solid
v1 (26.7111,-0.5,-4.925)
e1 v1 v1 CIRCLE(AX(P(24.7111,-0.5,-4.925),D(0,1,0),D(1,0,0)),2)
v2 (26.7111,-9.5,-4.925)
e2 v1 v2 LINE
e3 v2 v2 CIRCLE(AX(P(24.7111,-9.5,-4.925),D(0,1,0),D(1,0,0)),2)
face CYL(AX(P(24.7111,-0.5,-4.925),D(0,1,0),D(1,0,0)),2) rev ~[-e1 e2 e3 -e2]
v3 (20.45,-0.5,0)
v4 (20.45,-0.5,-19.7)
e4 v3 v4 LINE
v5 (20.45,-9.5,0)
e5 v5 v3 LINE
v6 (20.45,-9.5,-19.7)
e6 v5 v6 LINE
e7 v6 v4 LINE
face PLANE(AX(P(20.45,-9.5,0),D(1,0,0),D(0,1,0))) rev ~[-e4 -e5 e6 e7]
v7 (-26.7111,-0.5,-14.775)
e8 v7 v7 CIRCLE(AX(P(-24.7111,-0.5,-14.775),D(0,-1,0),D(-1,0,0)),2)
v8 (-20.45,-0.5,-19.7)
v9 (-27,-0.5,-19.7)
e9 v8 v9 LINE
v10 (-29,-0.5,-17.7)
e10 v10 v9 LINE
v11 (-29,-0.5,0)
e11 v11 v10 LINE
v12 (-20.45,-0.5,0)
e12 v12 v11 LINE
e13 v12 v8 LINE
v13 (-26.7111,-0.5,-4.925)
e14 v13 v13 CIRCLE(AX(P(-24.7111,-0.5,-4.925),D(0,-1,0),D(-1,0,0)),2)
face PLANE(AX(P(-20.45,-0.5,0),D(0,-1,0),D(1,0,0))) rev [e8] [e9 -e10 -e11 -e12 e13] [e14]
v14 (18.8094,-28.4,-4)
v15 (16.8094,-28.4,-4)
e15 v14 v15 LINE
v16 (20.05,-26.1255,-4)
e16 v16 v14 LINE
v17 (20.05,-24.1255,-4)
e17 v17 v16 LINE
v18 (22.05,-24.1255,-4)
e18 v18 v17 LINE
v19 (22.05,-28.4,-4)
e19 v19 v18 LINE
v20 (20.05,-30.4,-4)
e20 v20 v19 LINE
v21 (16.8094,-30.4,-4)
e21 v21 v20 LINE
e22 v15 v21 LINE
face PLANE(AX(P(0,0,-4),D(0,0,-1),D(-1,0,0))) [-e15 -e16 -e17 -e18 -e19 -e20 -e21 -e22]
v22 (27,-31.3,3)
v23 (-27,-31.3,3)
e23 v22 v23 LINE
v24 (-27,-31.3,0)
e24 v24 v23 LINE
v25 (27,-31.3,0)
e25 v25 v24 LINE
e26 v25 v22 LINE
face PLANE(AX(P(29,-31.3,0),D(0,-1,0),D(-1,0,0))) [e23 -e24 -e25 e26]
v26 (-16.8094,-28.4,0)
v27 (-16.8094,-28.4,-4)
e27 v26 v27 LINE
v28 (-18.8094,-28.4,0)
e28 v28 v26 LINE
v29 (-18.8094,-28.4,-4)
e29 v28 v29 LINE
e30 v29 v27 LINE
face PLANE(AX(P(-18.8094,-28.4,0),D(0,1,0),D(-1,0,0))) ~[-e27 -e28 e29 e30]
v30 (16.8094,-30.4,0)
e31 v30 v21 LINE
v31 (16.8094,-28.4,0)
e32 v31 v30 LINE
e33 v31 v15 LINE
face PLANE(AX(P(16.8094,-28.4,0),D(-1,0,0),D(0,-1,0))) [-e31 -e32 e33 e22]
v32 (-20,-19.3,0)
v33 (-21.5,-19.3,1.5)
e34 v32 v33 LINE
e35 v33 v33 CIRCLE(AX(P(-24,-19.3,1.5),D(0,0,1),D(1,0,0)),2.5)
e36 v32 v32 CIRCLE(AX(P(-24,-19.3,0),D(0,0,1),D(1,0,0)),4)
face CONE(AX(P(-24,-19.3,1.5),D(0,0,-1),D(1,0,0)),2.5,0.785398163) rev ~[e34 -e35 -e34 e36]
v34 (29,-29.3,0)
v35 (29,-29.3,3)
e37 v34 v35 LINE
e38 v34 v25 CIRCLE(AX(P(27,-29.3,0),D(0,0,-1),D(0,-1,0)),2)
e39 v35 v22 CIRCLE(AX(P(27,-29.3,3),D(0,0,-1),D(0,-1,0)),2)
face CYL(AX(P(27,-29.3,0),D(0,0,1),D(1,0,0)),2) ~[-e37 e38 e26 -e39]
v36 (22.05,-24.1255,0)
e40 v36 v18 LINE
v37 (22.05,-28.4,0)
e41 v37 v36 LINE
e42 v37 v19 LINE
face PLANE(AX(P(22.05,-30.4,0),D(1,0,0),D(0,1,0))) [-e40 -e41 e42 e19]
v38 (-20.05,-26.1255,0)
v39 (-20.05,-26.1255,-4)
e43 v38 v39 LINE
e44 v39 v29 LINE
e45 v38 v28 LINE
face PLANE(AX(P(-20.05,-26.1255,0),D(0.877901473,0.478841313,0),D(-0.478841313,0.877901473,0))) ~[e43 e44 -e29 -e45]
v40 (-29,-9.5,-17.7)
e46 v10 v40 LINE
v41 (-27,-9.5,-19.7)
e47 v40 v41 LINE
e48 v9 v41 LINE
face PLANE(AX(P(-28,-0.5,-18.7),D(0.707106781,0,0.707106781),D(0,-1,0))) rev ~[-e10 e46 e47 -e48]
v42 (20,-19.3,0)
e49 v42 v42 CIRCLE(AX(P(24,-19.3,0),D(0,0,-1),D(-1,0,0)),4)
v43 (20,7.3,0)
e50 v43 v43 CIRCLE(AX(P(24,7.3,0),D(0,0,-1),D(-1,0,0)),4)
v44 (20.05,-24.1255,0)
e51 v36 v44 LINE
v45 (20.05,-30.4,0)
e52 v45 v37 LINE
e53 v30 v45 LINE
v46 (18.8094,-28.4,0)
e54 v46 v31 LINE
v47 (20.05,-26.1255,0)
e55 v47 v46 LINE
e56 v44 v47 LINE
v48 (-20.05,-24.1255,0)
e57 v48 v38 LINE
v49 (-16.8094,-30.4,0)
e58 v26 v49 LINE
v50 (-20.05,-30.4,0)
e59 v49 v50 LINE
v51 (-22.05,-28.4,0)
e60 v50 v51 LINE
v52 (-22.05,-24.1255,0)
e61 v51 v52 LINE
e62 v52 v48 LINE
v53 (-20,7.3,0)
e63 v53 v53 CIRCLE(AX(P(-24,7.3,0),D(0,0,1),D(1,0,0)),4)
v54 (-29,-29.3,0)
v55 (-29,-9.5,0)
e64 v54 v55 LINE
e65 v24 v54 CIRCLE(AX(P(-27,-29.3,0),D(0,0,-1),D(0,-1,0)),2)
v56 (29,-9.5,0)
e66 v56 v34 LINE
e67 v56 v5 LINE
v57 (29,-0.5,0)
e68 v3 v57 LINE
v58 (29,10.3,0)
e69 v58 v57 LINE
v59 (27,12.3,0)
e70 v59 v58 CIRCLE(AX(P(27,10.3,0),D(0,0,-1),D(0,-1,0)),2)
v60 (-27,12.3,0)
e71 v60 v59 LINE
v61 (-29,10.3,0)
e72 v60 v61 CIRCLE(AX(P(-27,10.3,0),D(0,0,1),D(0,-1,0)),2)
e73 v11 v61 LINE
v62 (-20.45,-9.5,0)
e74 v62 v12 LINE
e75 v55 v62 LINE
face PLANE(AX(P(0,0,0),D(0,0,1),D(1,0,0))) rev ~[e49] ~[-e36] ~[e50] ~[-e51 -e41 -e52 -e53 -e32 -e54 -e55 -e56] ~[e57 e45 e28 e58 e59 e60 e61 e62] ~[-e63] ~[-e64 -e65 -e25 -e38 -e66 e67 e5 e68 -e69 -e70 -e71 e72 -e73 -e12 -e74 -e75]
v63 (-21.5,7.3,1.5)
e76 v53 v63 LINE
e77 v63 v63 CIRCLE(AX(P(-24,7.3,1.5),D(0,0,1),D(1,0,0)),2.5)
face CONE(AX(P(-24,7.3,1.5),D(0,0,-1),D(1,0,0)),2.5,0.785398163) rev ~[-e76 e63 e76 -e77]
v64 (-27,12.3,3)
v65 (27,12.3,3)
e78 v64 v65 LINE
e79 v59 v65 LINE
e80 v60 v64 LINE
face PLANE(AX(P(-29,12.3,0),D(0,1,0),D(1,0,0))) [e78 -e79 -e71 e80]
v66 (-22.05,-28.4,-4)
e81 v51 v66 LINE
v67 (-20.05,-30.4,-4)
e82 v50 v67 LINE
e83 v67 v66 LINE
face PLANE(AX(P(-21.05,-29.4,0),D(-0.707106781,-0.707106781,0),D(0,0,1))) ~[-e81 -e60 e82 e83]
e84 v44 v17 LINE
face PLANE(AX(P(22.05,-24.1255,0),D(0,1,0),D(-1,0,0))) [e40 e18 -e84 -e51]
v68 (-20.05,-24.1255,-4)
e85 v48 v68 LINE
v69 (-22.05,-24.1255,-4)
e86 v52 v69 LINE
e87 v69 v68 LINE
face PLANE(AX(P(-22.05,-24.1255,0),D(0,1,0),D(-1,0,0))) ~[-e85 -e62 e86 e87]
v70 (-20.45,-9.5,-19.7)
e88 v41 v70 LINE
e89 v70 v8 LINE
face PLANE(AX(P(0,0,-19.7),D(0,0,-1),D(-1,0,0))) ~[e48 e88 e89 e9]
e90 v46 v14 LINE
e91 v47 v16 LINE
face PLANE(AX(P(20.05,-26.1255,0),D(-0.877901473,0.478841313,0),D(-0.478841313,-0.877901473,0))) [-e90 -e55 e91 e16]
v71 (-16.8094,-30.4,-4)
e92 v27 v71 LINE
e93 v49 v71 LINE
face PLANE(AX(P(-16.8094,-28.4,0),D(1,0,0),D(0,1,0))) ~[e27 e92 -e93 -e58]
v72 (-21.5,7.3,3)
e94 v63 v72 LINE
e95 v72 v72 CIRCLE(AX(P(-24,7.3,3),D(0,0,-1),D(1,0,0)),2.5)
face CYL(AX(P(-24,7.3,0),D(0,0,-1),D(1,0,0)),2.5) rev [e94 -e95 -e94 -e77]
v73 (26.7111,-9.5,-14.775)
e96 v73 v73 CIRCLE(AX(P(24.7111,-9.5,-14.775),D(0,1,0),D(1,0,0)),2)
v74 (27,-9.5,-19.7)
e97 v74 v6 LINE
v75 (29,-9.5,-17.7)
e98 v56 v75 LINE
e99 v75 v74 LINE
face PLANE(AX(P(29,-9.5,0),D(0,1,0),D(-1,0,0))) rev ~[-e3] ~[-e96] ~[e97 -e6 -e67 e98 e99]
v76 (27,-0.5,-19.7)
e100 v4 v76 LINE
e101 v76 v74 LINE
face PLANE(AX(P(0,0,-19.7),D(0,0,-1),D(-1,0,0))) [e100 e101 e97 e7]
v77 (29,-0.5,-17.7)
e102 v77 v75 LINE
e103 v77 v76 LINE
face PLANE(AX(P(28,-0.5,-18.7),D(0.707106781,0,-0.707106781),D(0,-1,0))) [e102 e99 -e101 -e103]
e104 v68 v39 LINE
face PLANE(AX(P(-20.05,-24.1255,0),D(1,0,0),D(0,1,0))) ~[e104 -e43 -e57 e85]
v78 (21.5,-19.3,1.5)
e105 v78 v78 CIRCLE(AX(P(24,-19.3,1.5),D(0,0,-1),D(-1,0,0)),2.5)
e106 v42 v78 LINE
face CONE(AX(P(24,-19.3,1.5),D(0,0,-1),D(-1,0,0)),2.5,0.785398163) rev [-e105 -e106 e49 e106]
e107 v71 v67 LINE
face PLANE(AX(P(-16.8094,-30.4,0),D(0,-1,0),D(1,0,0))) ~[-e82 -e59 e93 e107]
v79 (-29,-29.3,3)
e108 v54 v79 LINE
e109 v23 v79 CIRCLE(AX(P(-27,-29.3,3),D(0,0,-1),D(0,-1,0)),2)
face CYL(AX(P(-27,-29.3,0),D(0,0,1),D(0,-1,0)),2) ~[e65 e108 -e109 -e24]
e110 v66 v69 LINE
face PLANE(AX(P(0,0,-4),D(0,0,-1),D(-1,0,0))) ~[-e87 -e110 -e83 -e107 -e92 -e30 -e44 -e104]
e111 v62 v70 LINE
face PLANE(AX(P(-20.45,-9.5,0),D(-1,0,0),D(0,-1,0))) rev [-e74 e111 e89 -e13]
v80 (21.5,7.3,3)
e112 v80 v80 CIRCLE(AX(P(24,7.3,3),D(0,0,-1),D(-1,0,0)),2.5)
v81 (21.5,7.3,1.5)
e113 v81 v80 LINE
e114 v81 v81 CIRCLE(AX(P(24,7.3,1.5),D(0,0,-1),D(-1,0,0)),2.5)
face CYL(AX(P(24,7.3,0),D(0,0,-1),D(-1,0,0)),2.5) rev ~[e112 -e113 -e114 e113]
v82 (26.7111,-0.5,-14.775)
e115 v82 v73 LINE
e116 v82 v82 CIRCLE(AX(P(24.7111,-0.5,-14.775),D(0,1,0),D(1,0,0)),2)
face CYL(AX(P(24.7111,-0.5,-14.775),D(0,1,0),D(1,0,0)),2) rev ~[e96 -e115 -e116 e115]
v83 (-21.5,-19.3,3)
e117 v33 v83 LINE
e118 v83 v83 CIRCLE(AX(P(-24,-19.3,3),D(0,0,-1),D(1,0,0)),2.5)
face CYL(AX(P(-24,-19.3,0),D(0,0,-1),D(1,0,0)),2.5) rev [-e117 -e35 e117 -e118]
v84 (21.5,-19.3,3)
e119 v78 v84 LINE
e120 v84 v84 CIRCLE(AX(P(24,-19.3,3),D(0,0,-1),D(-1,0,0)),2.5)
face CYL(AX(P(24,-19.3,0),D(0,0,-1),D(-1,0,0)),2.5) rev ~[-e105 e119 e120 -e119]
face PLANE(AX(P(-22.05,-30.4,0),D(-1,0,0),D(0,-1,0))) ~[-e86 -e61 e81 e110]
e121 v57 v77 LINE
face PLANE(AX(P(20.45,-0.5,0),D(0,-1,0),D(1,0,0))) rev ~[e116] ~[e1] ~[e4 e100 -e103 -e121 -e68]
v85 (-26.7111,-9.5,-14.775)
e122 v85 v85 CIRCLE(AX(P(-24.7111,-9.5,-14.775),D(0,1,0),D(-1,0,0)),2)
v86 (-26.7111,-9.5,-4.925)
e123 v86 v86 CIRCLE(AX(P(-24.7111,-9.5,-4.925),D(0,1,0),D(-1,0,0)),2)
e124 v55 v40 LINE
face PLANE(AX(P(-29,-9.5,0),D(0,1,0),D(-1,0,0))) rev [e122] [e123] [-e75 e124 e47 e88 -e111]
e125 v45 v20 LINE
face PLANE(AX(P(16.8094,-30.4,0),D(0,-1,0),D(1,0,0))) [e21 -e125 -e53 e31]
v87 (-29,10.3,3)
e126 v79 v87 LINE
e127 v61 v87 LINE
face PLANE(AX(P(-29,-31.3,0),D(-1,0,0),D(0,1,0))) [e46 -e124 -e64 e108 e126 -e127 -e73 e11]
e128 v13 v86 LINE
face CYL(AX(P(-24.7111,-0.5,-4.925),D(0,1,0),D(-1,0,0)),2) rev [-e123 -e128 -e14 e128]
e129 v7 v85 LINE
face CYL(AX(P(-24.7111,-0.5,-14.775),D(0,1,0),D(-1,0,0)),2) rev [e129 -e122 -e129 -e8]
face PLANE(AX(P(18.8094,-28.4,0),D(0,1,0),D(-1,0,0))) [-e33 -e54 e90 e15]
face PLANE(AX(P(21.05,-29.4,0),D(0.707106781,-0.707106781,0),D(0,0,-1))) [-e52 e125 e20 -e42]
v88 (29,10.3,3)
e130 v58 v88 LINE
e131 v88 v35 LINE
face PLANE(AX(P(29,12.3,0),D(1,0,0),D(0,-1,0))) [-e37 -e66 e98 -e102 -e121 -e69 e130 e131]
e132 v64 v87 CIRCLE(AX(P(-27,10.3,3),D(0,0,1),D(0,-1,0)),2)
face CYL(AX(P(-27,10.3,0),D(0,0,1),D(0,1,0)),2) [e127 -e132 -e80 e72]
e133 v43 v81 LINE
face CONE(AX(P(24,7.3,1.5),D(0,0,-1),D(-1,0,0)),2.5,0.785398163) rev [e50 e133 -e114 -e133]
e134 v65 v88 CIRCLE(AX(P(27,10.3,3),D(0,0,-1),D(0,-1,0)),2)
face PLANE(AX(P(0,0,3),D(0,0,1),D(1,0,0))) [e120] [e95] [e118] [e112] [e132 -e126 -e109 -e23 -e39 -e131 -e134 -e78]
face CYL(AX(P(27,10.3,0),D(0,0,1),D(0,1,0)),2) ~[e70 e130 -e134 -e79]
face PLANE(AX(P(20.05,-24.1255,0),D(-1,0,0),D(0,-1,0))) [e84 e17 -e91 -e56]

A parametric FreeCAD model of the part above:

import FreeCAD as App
import Part
import Sketcher
from FreeCAD import Vector
Q = App.Units.Quantity


def edges_at(feature, points):
    """Names of the edges that pass closest to the given points."""
    edges = feature.Shape.Edges
    near = lambda p: min(range(len(edges)), key=lambda i: edges[i].distToShape(Part.Vertex(*p))[0])
    return sorted({f"Edge{near(p) + 1}" for p in points})

doc = App.newDocument("Part")
body = doc.addObject("PartDesign::Body", "Body")

sketch1 = body.newObject("Sketcher::SketchObject", "Sketch")
sketch1.AttachmentSupport = (doc.getObject("XY_Plane"), [""])
sketch1.MapMode = "FlatFace"
sketch1.addGeometry(Part.LineSegment(Vector(29, 12, 0), Vector(-29, 12, 0)), False)
sketch1.addGeometry(Part.LineSegment(Vector(-29, 12, 0), Vector(-29, -31, 0)), False)
sketch1.addGeometry(Part.LineSegment(Vector(-29, -31, 0), Vector(29, -31, 0)), False)
sketch1.addGeometry(Part.LineSegment(Vector(29, -31, 0), Vector(29, 12, 0)), False)
sketch1.addConstraint(Sketcher.Constraint("Coincident", 0, 2, 1, 1))
sketch1.addConstraint(Sketcher.Constraint("Coincident", 1, 2, 2, 1))
sketch1.addConstraint(Sketcher.Constraint("Coincident", 2, 2, 3, 1))
sketch1.addConstraint(Sketcher.Constraint("Coincident", 3, 2, 0, 1))
sketch1.addConstraint(Sketcher.Constraint("Horizontal", 0))
sketch1.addConstraint(Sketcher.Constraint("Vertical", 1))
sketch1.addConstraint(Sketcher.Constraint("Horizontal", 2))
sketch1.addConstraint(Sketcher.Constraint("Vertical", 3))
sketch1.addConstraint(Sketcher.Constraint("DistanceX", 0, 2, 0, 1, 58.0))
sketch1.addConstraint(Sketcher.Constraint("DistanceY", 1, 2, 1, 1, 43.6))
sketch1.addConstraint(Sketcher.Constraint("DistanceX", 0, 2, -1, 1, 29.0))
sketch1.addConstraint(Sketcher.Constraint("DistanceY", -1, 1, 0, 2, 12.3))
pad1 = body.newObject("PartDesign::Pad", "Pad")
pad1.Profile = sketch1
pad1.Length = 3

sketch2 = body.newObject("Sketcher::SketchObject", "Sketch001")
sketch2.AttachmentSupport = (doc.getObject("XY_Plane"), [""])
sketch2.MapMode = "FlatFace"
sketch2.addGeometry(Part.LineSegment(Vector(29, 0, 0), Vector(29, -10, 0)), False)
sketch2.addGeometry(Part.LineSegment(Vector(29, -10, 0), Vector(20, -10, 0)), False)
sketch2.addGeometry(Part.LineSegment(Vector(20, -10, 0), Vector(20, 0, 0)), False)
sketch2.addGeometry(Part.LineSegment(Vector(20, 0, 0), Vector(29, 0, 0)), False)
sketch2.addConstraint(Sketcher.Constraint("Coincident", 0, 2, 1, 1))
sketch2.addConstraint(Sketcher.Constraint("Coincident", 1, 2, 2, 1))
sketch2.addConstraint(Sketcher.Constraint("Coincident", 2, 2, 3, 1))
sketch2.addConstraint(Sketcher.Constraint("Coincident", 3, 2, 0, 1))
sketch2.addConstraint(Sketcher.Constraint("Vertical", 0))
sketch2.addConstraint(Sketcher.Constraint("Horizontal", 1))
sketch2.addConstraint(Sketcher.Constraint("Vertical", 2))
sketch2.addConstraint(Sketcher.Constraint("Horizontal", 3))
sketch2.addConstraint(Sketcher.Constraint("DistanceY", 0, 2, 0, 1, 9.0))
sketch2.addConstraint(Sketcher.Constraint("DistanceY", 2, 2, -1, 1, 0.5))
sketch2.addConstraint(Sketcher.Constraint("DistanceX", -1, 1, 0, 2, 29.0))
sketch2.addConstraint(Sketcher.Constraint("DistanceX", 1, 2, 1, 1, 8.55))
pad2 = body.newObject("PartDesign::Pad", "Pad001")
pad2.Profile = sketch2
pad2.Length = 19.7
pad2.Reversed = True

sketch3 = body.newObject("Sketcher::SketchObject", "Sketch002")
sketch3.AttachmentSupport = (doc.getObject("XY_Plane"), [""])
sketch3.MapMode = "FlatFace"
sketch3.addGeometry(Part.LineSegment(Vector(16.8, -30.4, 0), Vector(16.8, -28.4, 0)), False)
sketch3.addGeometry(Part.LineSegment(Vector(16.8, -28.4, 0), Vector(18.8, -28.4, 0)), False)
sketch3.addGeometry(Part.LineSegment(Vector(18.8, -28.4, 0), Vector(20.1, -26.1, 0)), False)
sketch3.addGeometry(Part.LineSegment(Vector(20.1, -26.1, 0), Vector(20.1, -24.1, 0)), False)
sketch3.addGeometry(Part.LineSegment(Vector(20.1, -24.1, 0), Vector(22.1, -24.1, 0)), False)
sketch3.addGeometry(Part.LineSegment(Vector(22.1, -24.1, 0), Vector(22.1, -30.4, 0)), False)
sketch3.addGeometry(Part.LineSegment(Vector(22.1, -30.4, 0), Vector(16.8, -30.4, 0)), False)
sketch3.addConstraint(Sketcher.Constraint("Coincident", 0, 2, 1, 1))
sketch3.addConstraint(Sketcher.Constraint("Coincident", 1, 2, 2, 1))
sketch3.addConstraint(Sketcher.Constraint("Coincident", 2, 2, 3, 1))
sketch3.addConstraint(Sketcher.Constraint("Coincident", 3, 2, 4, 1))
sketch3.addConstraint(Sketcher.Constraint("Coincident", 4, 2, 5, 1))
sketch3.addConstraint(Sketcher.Constraint("Coincident", 5, 2, 6, 1))
sketch3.addConstraint(Sketcher.Constraint("Coincident", 6, 2, 0, 1))
sketch3.addConstraint(Sketcher.Constraint("Vertical", 0))
sketch3.addConstraint(Sketcher.Constraint("Horizontal", 1))
sketch3.addConstraint(Sketcher.Constraint("Vertical", 3))
sketch3.addConstraint(Sketcher.Constraint("Horizontal", 4))
sketch3.addConstraint(Sketcher.Constraint("Vertical", 5))
sketch3.addConstraint(Sketcher.Constraint("Horizontal", 6))
sketch3.addConstraint(Sketcher.Constraint("Equal", 1, 4))
sketch3.addConstraint(Sketcher.Constraint("Equal", 4, 0))
sketch3.addConstraint(Sketcher.Constraint("Equal", 0, 3))
sketch3.addConstraint(Sketcher.Constraint("DistanceX", 1, 1, 1, 2, 2.0))
sketch3.addConstraint(Sketcher.Constraint("DistanceY", 0, 2, -1, 1, 28.4))
sketch3.addConstraint(Sketcher.Constraint("Angle", 2, Q("61.3902 deg")))
sketch3.addConstraint(Sketcher.Constraint("DistanceX", -1, 1, 2, 2, 20.05))
sketch3.addConstraint(Sketcher.Constraint("DistanceX", 6, 2, 6, 1, 5.2406))
pad3 = body.newObject("PartDesign::Pad", "Pad002")
pad3.Profile = sketch3
pad3.Length = 4
pad3.Reversed = True

sketch4 = body.newObject("Sketcher::SketchObject", "Sketch003")
sketch4.AttachmentSupport = (doc.getObject("XY_Plane"), [""])
sketch4.MapMode = "FlatFace"
sketch4.addGeometry(Part.Circle(Vector(24, 7.3, 0), Vector(0, 0, 1), 2.5), False)
sketch4.addGeometry(Part.Circle(Vector(24, -19.3, 0), Vector(0, 0, 1), 2.5), False)
sketch4.addConstraint(Sketcher.Constraint("Equal", 0, 1))
sketch4.addConstraint(Sketcher.Constraint("Vertical", 0, 3, 1, 3))
sketch4.addConstraint(Sketcher.Constraint("Diameter", 0, 5.0))
sketch4.addConstraint(Sketcher.Constraint("DistanceX", -1, 1, 0, 3, 24.0))
sketch4.addConstraint(Sketcher.Constraint("DistanceY", -1, 1, 0, 3, 7.3))
sketch4.addConstraint(Sketcher.Constraint("DistanceY", 1, 3, -1, 1, 19.3))
pocket1 = body.newObject("PartDesign::Pocket", "Pocket")
pocket1.Profile = sketch4
pocket1.Type = "ThroughAll"
pocket1.Reversed = True
doc.recompute()

chamfer = body.newObject("PartDesign::Chamfer", "Chamfer")
chamfer.Base = (pocket1, edges_at(pocket1, [(26.5, 7.3, 0), (26.5, -19.3, 0)]))
chamfer.Size = 1.5
doc.recompute()

chamfer2 = body.newObject("PartDesign::Chamfer", "Chamfer001")
chamfer2.Base = (chamfer, edges_at(chamfer, [(29, -5, -19.7), (22.05, -30.4, -2)]))
chamfer2.Size = 2

sketch5 = body.newObject("Sketcher::SketchObject", "Sketch004")
sketch5.AttachmentSupport = (doc.getObject("XZ_Plane"), [""])
sketch5.MapMode = "FlatFace"
sketch5.AttachmentOffset = App.Placement(Vector(0, 0, 0.5), App.Rotation())
sketch5.addGeometry(Part.Circle(Vector(24.7, -14.8, 0), Vector(0, 0, 1), 2), False)
sketch5.addGeometry(Part.Circle(Vector(24.7, -4.9, 0), Vector(0, 0, 1), 2), False)
sketch5.addConstraint(Sketcher.Constraint("Equal", 0, 1))
sketch5.addConstraint(Sketcher.Constraint("Vertical", 0, 3, 1, 3))
sketch5.addConstraint(Sketcher.Constraint("Diameter", 0, 4.0))
sketch5.addConstraint(Sketcher.Constraint("DistanceY", 0, 3, 1, 3, 9.85))
sketch5.addConstraint(Sketcher.Constraint("DistanceX", -1, 1, 0, 3, 24.711))
sketch5.addConstraint(Sketcher.Constraint("DistanceY", 0, 3, -1, 1, 14.775))
pocket2 = body.newObject("PartDesign::Pocket", "Pocket001")
pocket2.Profile = sketch5
pocket2.Type = "ThroughAll"
pocket2.Reversed = True
doc.recompute()

mirrored = body.newObject("PartDesign::Mirrored", "Mirrored")
mirrored.Originals = [pad3, pocket1, chamfer, pad2, chamfer2, pocket2]
mirrored.MirrorPlane = (doc.getObject("YZ_Plane"), [""])
body.Tip = mirrored
doc.recompute()

fillet = body.newObject("PartDesign::Fillet", "Fillet")
fillet.Base = (mirrored, edges_at(mirrored, [
    (29, -31.3, 1.5),
    (29, 12.3, 1.5),
    (-29, 12.3, 1.5),
    (-29, -31.3, 1.5),
]))
fillet.Radius = 2

doc.recompute()
